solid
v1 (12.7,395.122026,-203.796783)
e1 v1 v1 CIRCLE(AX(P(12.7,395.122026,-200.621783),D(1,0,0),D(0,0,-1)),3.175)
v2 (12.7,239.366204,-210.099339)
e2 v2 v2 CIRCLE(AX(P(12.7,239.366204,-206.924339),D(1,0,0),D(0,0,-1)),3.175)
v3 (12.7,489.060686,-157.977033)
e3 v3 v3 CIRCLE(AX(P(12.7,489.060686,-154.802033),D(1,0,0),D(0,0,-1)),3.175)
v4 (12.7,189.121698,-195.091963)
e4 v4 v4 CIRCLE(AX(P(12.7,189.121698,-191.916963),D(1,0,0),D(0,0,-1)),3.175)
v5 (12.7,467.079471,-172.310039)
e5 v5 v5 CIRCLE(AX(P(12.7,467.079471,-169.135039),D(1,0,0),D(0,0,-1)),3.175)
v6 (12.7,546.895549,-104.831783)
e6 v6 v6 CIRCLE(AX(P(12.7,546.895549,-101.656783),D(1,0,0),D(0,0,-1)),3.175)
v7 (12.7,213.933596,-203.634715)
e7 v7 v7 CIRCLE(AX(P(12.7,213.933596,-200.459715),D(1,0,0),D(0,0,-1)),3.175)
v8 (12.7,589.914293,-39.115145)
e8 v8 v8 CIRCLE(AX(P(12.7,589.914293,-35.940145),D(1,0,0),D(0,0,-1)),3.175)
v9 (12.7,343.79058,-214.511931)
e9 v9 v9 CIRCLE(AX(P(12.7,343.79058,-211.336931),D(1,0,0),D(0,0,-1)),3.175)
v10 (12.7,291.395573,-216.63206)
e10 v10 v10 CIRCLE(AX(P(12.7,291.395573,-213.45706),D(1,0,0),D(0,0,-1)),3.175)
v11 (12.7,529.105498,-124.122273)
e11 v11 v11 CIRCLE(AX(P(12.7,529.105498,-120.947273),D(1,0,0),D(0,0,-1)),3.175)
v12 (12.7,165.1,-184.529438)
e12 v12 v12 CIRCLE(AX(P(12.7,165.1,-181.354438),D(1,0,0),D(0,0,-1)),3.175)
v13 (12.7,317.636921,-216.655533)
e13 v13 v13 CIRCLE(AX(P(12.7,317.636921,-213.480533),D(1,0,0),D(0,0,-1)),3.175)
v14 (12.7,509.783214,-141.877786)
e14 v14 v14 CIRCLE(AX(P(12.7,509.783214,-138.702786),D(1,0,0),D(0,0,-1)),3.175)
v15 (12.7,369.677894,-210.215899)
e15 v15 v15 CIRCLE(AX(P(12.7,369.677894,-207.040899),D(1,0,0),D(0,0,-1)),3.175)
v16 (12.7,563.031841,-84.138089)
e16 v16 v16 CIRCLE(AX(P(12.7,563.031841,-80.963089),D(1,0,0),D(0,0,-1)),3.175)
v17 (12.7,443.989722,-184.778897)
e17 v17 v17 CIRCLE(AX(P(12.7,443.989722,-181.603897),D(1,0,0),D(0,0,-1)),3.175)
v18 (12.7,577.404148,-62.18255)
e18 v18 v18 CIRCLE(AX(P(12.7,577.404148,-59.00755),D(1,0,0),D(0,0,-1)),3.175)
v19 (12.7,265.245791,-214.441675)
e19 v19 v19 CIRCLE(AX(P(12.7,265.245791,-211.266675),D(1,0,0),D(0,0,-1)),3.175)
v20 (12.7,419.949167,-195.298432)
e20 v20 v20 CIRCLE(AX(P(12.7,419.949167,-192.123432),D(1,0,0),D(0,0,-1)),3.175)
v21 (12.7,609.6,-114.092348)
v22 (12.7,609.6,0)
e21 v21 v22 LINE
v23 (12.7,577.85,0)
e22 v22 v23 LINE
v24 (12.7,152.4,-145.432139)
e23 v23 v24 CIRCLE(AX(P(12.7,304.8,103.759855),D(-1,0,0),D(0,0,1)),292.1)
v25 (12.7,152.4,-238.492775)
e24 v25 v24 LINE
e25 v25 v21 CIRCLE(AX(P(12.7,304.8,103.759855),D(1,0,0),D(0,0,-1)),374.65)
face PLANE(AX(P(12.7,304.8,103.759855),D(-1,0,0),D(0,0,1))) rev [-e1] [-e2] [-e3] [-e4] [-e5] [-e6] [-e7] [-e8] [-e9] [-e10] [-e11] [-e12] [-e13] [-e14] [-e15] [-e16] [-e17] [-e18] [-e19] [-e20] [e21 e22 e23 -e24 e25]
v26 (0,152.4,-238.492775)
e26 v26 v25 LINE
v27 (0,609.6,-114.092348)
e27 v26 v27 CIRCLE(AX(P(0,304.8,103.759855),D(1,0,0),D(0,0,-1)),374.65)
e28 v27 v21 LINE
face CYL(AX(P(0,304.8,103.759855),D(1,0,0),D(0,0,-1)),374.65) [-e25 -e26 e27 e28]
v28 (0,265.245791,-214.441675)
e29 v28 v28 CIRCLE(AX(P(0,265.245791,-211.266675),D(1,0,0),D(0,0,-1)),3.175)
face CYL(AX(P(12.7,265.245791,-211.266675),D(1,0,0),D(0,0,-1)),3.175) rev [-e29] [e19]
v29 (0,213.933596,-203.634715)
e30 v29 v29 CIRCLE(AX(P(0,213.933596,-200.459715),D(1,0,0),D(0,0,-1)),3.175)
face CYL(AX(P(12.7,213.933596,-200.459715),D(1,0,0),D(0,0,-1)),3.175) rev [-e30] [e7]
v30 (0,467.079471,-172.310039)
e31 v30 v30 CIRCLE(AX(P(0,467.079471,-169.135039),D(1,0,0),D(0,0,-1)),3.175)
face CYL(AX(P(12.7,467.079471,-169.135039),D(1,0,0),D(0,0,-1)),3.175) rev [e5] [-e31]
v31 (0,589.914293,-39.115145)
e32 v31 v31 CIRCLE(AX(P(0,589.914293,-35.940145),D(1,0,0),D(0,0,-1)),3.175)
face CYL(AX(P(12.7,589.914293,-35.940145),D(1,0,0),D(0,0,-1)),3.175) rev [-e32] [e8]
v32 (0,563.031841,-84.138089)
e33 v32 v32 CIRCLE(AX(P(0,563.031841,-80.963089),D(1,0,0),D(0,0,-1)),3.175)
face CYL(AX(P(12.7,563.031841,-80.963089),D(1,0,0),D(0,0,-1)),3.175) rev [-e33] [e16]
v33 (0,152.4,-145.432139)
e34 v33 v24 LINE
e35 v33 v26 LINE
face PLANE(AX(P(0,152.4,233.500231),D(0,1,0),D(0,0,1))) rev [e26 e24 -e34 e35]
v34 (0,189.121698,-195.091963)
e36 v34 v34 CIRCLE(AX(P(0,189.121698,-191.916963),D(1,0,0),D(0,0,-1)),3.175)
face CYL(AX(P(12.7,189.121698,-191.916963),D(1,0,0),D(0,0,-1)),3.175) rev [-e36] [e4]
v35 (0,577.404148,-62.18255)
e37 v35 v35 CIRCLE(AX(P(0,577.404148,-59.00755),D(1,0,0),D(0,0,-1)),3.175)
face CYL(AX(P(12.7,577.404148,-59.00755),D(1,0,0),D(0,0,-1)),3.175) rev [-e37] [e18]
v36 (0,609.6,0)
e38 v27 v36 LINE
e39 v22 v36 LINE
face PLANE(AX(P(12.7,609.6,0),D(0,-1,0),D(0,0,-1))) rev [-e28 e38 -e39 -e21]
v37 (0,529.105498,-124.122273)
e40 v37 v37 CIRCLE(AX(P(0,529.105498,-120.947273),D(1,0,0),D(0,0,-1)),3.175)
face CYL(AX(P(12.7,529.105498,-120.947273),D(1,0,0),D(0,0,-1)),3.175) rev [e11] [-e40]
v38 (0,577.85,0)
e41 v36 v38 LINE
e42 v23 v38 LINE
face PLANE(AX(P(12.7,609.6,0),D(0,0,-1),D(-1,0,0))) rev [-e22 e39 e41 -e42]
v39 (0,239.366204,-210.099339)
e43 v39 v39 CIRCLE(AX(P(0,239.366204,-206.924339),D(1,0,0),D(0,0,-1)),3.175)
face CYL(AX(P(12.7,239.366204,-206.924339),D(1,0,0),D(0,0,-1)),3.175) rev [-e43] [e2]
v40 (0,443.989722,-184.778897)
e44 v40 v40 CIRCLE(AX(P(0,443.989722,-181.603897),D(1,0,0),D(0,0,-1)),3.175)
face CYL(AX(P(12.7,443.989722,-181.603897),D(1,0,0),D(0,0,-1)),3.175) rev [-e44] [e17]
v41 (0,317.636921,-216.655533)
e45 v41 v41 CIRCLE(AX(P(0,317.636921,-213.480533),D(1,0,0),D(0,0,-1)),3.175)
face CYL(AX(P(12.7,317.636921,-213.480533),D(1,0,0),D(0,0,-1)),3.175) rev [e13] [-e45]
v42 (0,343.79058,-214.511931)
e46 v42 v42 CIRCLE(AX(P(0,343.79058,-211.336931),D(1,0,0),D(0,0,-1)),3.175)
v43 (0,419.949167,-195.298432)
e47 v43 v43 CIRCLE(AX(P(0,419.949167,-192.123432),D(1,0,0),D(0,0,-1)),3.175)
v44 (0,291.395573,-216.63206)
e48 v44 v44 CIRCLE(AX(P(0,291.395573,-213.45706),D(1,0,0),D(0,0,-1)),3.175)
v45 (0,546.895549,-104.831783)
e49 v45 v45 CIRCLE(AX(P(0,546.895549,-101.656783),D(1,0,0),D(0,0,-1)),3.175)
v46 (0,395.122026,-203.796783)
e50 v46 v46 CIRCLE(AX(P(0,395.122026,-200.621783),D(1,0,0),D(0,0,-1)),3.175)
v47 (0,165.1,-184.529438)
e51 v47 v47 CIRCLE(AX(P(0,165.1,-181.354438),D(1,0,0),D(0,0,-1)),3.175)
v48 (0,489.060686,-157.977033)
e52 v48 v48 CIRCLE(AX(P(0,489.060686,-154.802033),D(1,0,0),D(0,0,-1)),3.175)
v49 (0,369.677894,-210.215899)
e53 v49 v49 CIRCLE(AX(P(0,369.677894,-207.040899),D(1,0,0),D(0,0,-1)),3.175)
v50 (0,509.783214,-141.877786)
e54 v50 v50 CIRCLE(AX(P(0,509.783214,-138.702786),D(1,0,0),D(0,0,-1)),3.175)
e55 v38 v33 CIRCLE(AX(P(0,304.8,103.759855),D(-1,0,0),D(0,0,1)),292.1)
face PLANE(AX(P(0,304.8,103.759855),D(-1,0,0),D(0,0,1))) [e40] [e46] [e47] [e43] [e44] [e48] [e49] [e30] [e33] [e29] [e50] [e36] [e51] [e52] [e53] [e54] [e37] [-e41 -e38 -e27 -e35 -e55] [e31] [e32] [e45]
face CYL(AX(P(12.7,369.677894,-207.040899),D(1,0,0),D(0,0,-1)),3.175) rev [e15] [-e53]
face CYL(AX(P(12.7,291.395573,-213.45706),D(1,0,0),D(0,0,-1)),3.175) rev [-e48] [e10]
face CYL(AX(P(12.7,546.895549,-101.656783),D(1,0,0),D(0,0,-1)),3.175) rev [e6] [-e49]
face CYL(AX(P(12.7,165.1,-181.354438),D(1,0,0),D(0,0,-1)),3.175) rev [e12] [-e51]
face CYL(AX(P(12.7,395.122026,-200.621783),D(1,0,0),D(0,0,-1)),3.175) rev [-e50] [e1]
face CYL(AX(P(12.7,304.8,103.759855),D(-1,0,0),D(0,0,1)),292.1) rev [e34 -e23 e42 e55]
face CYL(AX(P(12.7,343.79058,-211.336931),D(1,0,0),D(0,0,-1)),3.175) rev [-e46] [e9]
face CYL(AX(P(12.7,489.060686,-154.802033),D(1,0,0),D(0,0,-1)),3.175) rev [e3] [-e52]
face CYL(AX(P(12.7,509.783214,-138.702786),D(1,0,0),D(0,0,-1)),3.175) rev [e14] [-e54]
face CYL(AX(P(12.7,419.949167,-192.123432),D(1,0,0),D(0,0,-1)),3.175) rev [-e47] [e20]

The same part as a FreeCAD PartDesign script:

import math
import FreeCAD as App
import Part
import Sketcher
Q = App.Units.Quantity


def add_polygon(sketch, points):
    """Adds a closed chain of lines whose ends are joined by coincident constraints."""
    first, n = sketch.GeometryCount, len(points)
    for a, b in zip(points, points[1:] + points[:1]):
        sketch.addGeometry(Part.LineSegment(App.Vector(*a, 0), App.Vector(*b, 0)), False)
    for i in range(n):
        sketch.addConstraint(Sketcher.Constraint("Coincident", first + i, 2, first + (i + 1) % n, 1))

doc = App.newDocument("Part")
params = doc.addObject("Spreadsheet::Sheet", "Params")
for row, (alias, value) in enumerate([
    ("sketch1_radius", "11.5 in"),
    ("sketch1_width", "24 in"),
    ("sketch1_width2", "1.25 in"),
    ("sketch1_height", "12.75 in"),
    ("pad1_length", "0.5 in"),
    ("sketch2_width", "6 in"),
    ("pocket1_length", "0.5 in"),
    ("sketch3_width", "18 in"),
    ("sketch3_height", "6.375 in"),
    ("pocket2_length", "0.5 in"),
    ("sketch4_diameter", "0.25 in"),
    ("hole_diameter", "0.25 in"),
    ("sketch5_radius", "14.75 in"),
], start=1):
    params.set(f"A{row}", alias)
    params.set(f"B{row}", "=" + value)
    params.setAlias(f"B{row}", alias)

body = doc.addObject("PartDesign::Body", "Body")

# Sketch on YZ plane
sketch1 = body.newObject("Sketcher::SketchObject", "Sketch")
sketch1.AttachmentSupport = (doc.getObject("YZ_Plane"), [""])
sketch1.MapMode = "FlatFace"
sketch1.addGeometry([
    Part.LineSegment(App.Vector(610, -324, 0), App.Vector(610, 0, 0)),  # 0
    Part.LineSegment(App.Vector(610, 0, 0), App.Vector(578, 0, 0)),  # 1
    Part.ArcOfCircle(Part.Circle(App.Vector(305, 104, 0), App.Vector(0, 0, 1), 292), math.radians(-159), math.radians(-21)),  # 2
    Part.LineSegment(App.Vector(32, 0, 0), App.Vector(0, 0, 0)),  # 3
    Part.LineSegment(App.Vector(0, 0, 0), App.Vector(0, -324, 0)),  # 4
    Part.LineSegment(App.Vector(0, -324, 0), App.Vector(610, -324, 0)),  # 5
], False)
sketch1.addConstraint([
    Sketcher.Constraint("Coincident", 0, 2, 1, 1),
    Sketcher.Constraint("Coincident", 1, 2, 2, 2),
    Sketcher.Constraint("Coincident", 2, 1, 3, 1),
    Sketcher.Constraint("Coincident", 3, 2, 4, 1),
    Sketcher.Constraint("Coincident", 4, 2, 5, 1),
    Sketcher.Constraint("Coincident", 5, 2, 0, 1),
    Sketcher.Constraint("Vertical", 0),
    Sketcher.Constraint("Horizontal", 1),
    Sketcher.Constraint("Horizontal", 3),
    Sketcher.Constraint("Vertical", 4),
    Sketcher.Constraint("Horizontal", 5),
    Sketcher.Constraint("Coincident", 3, 2, -1, 1),
    Sketcher.Constraint("PointOnObject", 0, 2, -1),
    Sketcher.Constraint("Equal", 1, 3),
    Sketcher.Constraint("Radius", 2, Q("11.5 in")),
    Sketcher.Constraint("DistanceX", 5, 1, 5, 2, Q("24 in")),
    Sketcher.Constraint("DistanceX", 1, 2, 1, 1, Q("1.25 in")),
    Sketcher.Constraint("DistanceY", 0, 1, 0, 2, Q("12.75 in")),
])
sketch1.setExpression("Constraints[14]", "Params.sketch1_radius")
sketch1.setExpression("Constraints[15]", "Params.sketch1_width")
sketch1.setExpression("Constraints[16]", "Params.sketch1_width2")
sketch1.setExpression("Constraints[17]", "Params.sketch1_height")
pad1 = body.newObject("PartDesign::Pad", "Pad")
pad1.Profile = sketch1
pad1.setExpression("Length", "Params.pad1_length")

# Sketch on YZ plane
sketch2 = body.newObject("Sketcher::SketchObject", "Sketch001")
sketch2.AttachmentSupport = (doc.getObject("YZ_Plane"), [""])
sketch2.MapMode = "FlatFace"
sketch2.AttachmentOffset = App.Placement(App.Vector(0, 0, 0.5 * 25.4), App.Rotation())
add_polygon(sketch2, [(152, 234), (0, 234), (0, -619), (152, -619)])  # lines 0-3
sketch2.addConstraint([
    Sketcher.Constraint("Horizontal", 0),
    Sketcher.Constraint("Vertical", 1),
    Sketcher.Constraint("Horizontal", 2),
    Sketcher.Constraint("Vertical", 3),
    Sketcher.Constraint("PointOnObject", 0, 2, -2),
    Sketcher.Constraint("DistanceX", 0, 2, 0, 1, Q("6 in")),
    Sketcher.Constraint("DistanceY", 1, 2, 1, 1, 852.307145),
    Sketcher.Constraint("DistanceY", -1, 1, 0, 2, 233.500231),
])
sketch2.setExpression("Constraints[9]", "Params.sketch2_width")
pocket1 = body.newObject("PartDesign::Pocket", "Pocket")
pocket1.Profile = sketch2
pocket1.setExpression("Length", "Params.pocket1_length")

# Sketch on YZ plane
sketch3 = body.newObject("Sketcher::SketchObject", "Sketch002")
sketch3.AttachmentSupport = (doc.getObject("YZ_Plane"), [""])
sketch3.MapMode = "FlatFace"
sketch3.AttachmentOffset = App.Placement(App.Vector(0, 0, 0.5 * 25.4), App.Rotation())
sketch3.addGeometry([
    Part.LineSegment(App.Vector(152, -271, 0), App.Vector(152, -324, 0)),
    Part.LineSegment(App.Vector(152, -324, 0), App.Vector(610, -324, 0)),
    Part.LineSegment(App.Vector(610, -324, 0), App.Vector(610, -162, 0)),
    Part.ArcOfCircle(Part.Circle(App.Vector(305, 104, 0), App.Vector(0, 0, 1), 404), math.radians(-112), math.radians(-41)),
], False)
sketch3.addConstraint([
    Sketcher.Constraint("Coincident", 0, 2, 1, 1),
    Sketcher.Constraint("Coincident", 1, 2, 2, 1),
    Sketcher.Constraint("Coincident", 2, 2, 3, 2),
    Sketcher.Constraint("Coincident", 3, 1, 0, 1),
    Sketcher.Constraint("Vertical", 0),
    Sketcher.Constraint("Horizontal", 1),
    Sketcher.Constraint("Vertical", 2),
    Sketcher.Constraint("DistanceX", 1, 1, 1, 2, Q("18 in")),
    Sketcher.Constraint("DistanceX", -1, 1, 3, 3, Q("12 in")),
    Sketcher.Constraint("DistanceX", -1, 1, 0, 2, Q("6 in")),
    Sketcher.Constraint("DistanceY", 2, 1, 2, 2, Q("6.375 in")),
    Sketcher.Constraint("DistanceY", 0, 2, -1, 1, Q("12.75 in")),
    Sketcher.Constraint("Radius", 3, 404.3408),
])
sketch3.setExpression("Constraints[7]", "Params.sketch3_width")
sketch3.setExpression("Constraints[10]", "Params.sketch3_height")
pocket2 = body.newObject("PartDesign::Pocket", "Pocket001")
pocket2.Profile = sketch3
pocket2.setExpression("Length", "Params.pocket2_length")

# Sketch on YZ plane
sketch4 = body.newObject("Sketcher::SketchObject", "Sketch003")
sketch4.AttachmentSupport = (doc.getObject("YZ_Plane"), [""])
sketch4.MapMode = "FlatFace"
sketch4.AttachmentOffset = App.Placement(App.Vector(0, 0, 0.5 * 25.4), App.Rotation())
sketch4.addGeometry([
    Part.Circle(App.Vector(165.1, -181.4, 0), App.Vector(0, 0, 1), 3.2),  # 0
    Part.Circle(App.Vector(189.1, -191.9, 0), App.Vector(0, 0, 1), 3.2),  # 1
    Part.Circle(App.Vector(213.9, -200.5, 0), App.Vector(0, 0, 1), 3.2),  # 2
    Part.Circle(App.Vector(239.4, -206.9, 0), App.Vector(0, 0, 1), 3.2),  # 3
    Part.Circle(App.Vector(265.2, -211.3, 0), App.Vector(0, 0, 1), 3.2),  # 4
    Part.Circle(App.Vector(291.4, -213.5, 0), App.Vector(0, 0, 1), 3.2),  # 5
    Part.Circle(App.Vector(317.6, -213.5, 0), App.Vector(0, 0, 1), 3.2),  # 6
    Part.Circle(App.Vector(343.8, -211.3, 0), App.Vector(0, 0, 1), 3.2),  # 7
    Part.Circle(App.Vector(369.7, -207, 0), App.Vector(0, 0, 1), 3.2),  # 8
    Part.Circle(App.Vector(395.1, -200.6, 0), App.Vector(0, 0, 1), 3.2),  # 9
    Part.Circle(App.Vector(419.9, -192.1, 0), App.Vector(0, 0, 1), 3.2),  # 10
    Part.Circle(App.Vector(444, -181.6, 0), App.Vector(0, 0, 1), 3.2),  # 11
    Part.Circle(App.Vector(467.1, -169.1, 0), App.Vector(0, 0, 1), 3.2),  # 12
    Part.Circle(App.Vector(489.1, -154.8, 0), App.Vector(0, 0, 1), 3.2),  # 13
    Part.Circle(App.Vector(509.8, -138.7, 0), App.Vector(0, 0, 1), 3.2),  # 14
    Part.Circle(App.Vector(529.1, -120.9, 0), App.Vector(0, 0, 1), 3.2),  # 15
    Part.Circle(App.Vector(546.9, -101.7, 0), App.Vector(0, 0, 1), 3.2),  # 16
    Part.Circle(App.Vector(563, -81, 0), App.Vector(0, 0, 1), 3.2),  # 17
    Part.Circle(App.Vector(577.4, -59, 0), App.Vector(0, 0, 1), 3.2),  # 18
    Part.Circle(App.Vector(589.9, -35.9, 0), App.Vector(0, 0, 1), 3.2),  # 19
], False)
sketch4.addConstraint([
    Sketcher.Constraint("Equal", 0, 1),
    Sketcher.Constraint("Equal", 1, 2),
    Sketcher.Constraint("Equal", 2, 3),
    Sketcher.Constraint("Equal", 3, 4),
    Sketcher.Constraint("Equal", 4, 5),
    Sketcher.Constraint("Equal", 5, 6),
    Sketcher.Constraint("Equal", 6, 7),
    Sketcher.Constraint("Equal", 7, 8),
    Sketcher.Constraint("Equal", 8, 9),
    Sketcher.Constraint("Equal", 9, 10),
    Sketcher.Constraint("Equal", 10, 11),
    Sketcher.Constraint("Equal", 11, 12),
    Sketcher.Constraint("Equal", 12, 13),
    Sketcher.Constraint("Equal", 13, 14),
    Sketcher.Constraint("Equal", 14, 15),
    Sketcher.Constraint("Equal", 15, 16),
    Sketcher.Constraint("Equal", 16, 17),
    Sketcher.Constraint("Equal", 17, 18),
    Sketcher.Constraint("Equal", 18, 19),
    Sketcher.Constraint("Diameter", 0, Q("0.25 in")),
    Sketcher.Constraint("DistanceX", -1, 1, 0, 3, Q("6.5 in")),
    Sketcher.Constraint("DistanceX", 4, 3, 8, 3, Q("4.1115001 in")),
    Sketcher.Constraint("DistanceY", 11, 3, 12, 3, Q("0.4908999 in")),
    Sketcher.Constraint("DistanceX", -1, 1, 1, 3, 189.121698),
    Sketcher.Constraint("DistanceY", 8, 3, -1, 1, 207.040899),
    Sketcher.Constraint("DistanceX", -1, 1, 15, 3, 529.105498),
    Sketcher.Constraint("DistanceX", 1, 3, 2, 3, 24.811898),
    Sketcher.Constraint("DistanceY", 3, 3, 0, 3, 25.569901),
    Sketcher.Constraint("DistanceY", 6, 3, 7, 3, 2.143601),
    Sketcher.Constraint("DistanceY", 7, 3, 10, 3, 19.213499),
    Sketcher.Constraint("DistanceY", 8, 3, 11, 3, 25.437002),
    Sketcher.Constraint("DistanceX", 6, 3, 11, 3, 126.352801),
    Sketcher.Constraint("DistanceY", 10, 3, 13, 3, 37.321399),
    Sketcher.Constraint("DistanceX", 16, 3, 18, 3, 30.5086),
    Sketcher.Constraint("DistanceY", 3, 3, -1, 1, 206.924339),
    Sketcher.Constraint("DistanceX", -1, 1, 4, 3, 265.245791),
    Sketcher.Constraint("DistanceY", 5, 3, -1, 1, 213.45706),
    Sketcher.Constraint("DistanceX", -1, 1, 6, 3, 317.636921),
    Sketcher.Constraint("DistanceX", -1, 1, 7, 3, 343.79058),
    Sketcher.Constraint("DistanceY", 7, 3, -1, 1, 211.336931),
    Sketcher.Constraint("DistanceX", -1, 1, 12, 3, 467.079471),
    Sketcher.Constraint("DistanceX", -1, 1, 16, 3, 546.895549),
    Sketcher.Constraint("DistanceX", -1, 1, 17, 3, 563.031841),
    Sketcher.Constraint("DistanceY", 17, 3, -1, 1, 80.963089),
    Sketcher.Constraint("DistanceY", 18, 3, -1, 1, 59.00755),
    Sketcher.Constraint("DistanceY", 4, 3, 2, 3, 10.80696),
    Sketcher.Constraint("DistanceX", 3, 3, 5, 3, 52.029369),
    Sketcher.Constraint("DistanceX", 5, 3, 6, 3, 26.241348),
    Sketcher.Constraint("DistanceY", 6, 3, 1, 3, 21.56357),
    Sketcher.Constraint("DistanceX", 8, 3, 9, 3, 25.444132),
    Sketcher.Constraint("DistanceY", 7, 3, 9, 3, 10.715148),
    Sketcher.Constraint("DistanceY", 4, 3, 9, 3, 10.644892),
    Sketcher.Constraint("DistanceX", 9, 3, 10, 3, 24.827141),
    Sketcher.Constraint("DistanceX", 10, 3, 13, 3, 69.111519),
    Sketcher.Constraint("DistanceX", 11, 3, 14, 3, 65.793491),
    Sketcher.Constraint("DistanceY", 11, 3, 14, 3, 42.901112),
    Sketcher.Constraint("DistanceY", 13, 3, 15, 3, 33.854759),
    Sketcher.Constraint("DistanceY", 15, 3, 16, 3, 19.29049),
    Sketcher.Constraint("DistanceX", 17, 3, 19, 3, 26.882452),
    Sketcher.Constraint("DistanceY", 16, 3, 19, 3, 65.716638),
])
sketch4.setExpression("Constraints[19]", "Params.sketch4_diameter")
doc.recompute()
hole = body.newObject("PartDesign::Hole", "Hole")
hole.Profile = sketch4
hole.ThreadType = "None"
hole.setExpression("Diameter", "Params.hole_diameter")
hole.DepthType = "ThroughAll"

# Sketch on YZ plane
sketch5 = body.newObject("Sketcher::SketchObject", "Sketch004")
sketch5.AttachmentSupport = (doc.getObject("YZ_Plane"), [""])
sketch5.MapMode = "FlatFace"
sketch5.AttachmentOffset = App.Placement(App.Vector(0, 0, 0.5 * 25.4), App.Rotation())
sketch5.addGeometry([
    Part.LineSegment(App.Vector(610, -162, 0), App.Vector(610, -114, 0)),
    Part.ArcOfCircle(Part.Circle(App.Vector(305, 104, 0), App.Vector(0, 0, 1), 375), math.radians(-114), math.radians(-36)),
    Part.LineSegment(App.Vector(152, -238, 0), App.Vector(152, -271, 0)),
    Part.ArcOfCircle(Part.Circle(App.Vector(305, 104, 0), App.Vector(0, 0, 1), 404), math.radians(-112), math.radians(-41)),
], False)
sketch5.addConstraint([
    Sketcher.Constraint("Coincident", 0, 2, 1, 2),
    Sketcher.Constraint("Coincident", 1, 1, 2, 1),
    Sketcher.Constraint("Coincident", 2, 2, 3, 1),
    Sketcher.Constraint("Coincident", 3, 2, 0, 1),
    Sketcher.Constraint("Vertical", 0),
    Sketcher.Constraint("Vertical", 2),
    Sketcher.Constraint("Coincident", 3, 3, 1, 3),
    Sketcher.Constraint("Radius", 1, Q("14.75 in")),
    Sketcher.Constraint("DistanceX", -1, 1, 1, 3, Q("12 in")),
    Sketcher.Constraint("DistanceX", -1, 1, 0, 2, Q("24 in")),
    Sketcher.Constraint("DistanceX", -1, 1, 2, 2, Q("6 in")),
    Sketcher.Constraint("Radius", 3, 404.3408),
    Sketcher.Constraint("DistanceY", 2, 2, -1, 1, 270.760802),
])
sketch5.setExpression("Constraints[7]", "Params.sketch5_radius")
pocket3 = body.newObject("PartDesign::Pocket", "Pocket002")
pocket3.Profile = sketch5
pocket3.Type = "ThroughAll"

doc.recompute()
